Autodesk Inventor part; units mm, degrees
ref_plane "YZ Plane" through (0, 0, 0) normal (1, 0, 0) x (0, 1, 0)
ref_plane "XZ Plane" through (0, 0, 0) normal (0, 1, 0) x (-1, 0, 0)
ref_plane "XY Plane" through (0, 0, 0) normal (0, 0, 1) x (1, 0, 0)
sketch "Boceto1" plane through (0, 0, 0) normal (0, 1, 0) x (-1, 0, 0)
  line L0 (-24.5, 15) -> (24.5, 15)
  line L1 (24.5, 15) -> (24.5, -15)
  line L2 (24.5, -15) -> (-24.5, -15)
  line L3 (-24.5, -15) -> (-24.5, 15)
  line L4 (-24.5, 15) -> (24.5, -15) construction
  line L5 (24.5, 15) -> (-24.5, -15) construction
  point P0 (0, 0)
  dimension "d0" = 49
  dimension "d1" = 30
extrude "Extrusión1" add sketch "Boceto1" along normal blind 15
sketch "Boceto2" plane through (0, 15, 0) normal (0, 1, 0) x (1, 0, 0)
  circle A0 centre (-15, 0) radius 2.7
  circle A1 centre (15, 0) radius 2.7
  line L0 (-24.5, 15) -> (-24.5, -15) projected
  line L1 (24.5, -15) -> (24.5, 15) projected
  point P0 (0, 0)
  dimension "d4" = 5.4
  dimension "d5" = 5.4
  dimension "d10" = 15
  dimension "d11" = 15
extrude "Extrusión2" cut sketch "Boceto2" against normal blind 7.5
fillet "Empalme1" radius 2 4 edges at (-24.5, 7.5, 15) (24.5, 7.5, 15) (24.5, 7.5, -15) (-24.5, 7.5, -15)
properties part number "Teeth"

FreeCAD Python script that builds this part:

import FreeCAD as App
import Part
import Sketcher
from FreeCAD import Vector
Q = App.Units.Quantity


def edges_at(feature, points):
    """Names of the edges that pass closest to the given points."""
    edges = feature.Shape.Edges
    near = lambda p: min(range(len(edges)), key=lambda i: edges[i].distToShape(Part.Vertex(*p))[0])
    return sorted({f"Edge{near(p) + 1}" for p in points})

doc = App.newDocument("Part")
body = doc.addObject("PartDesign::Body", "Body")

sketch1 = doc.addObject("Sketcher::SketchObject", "Sketch")
body.addObject(sketch1)
sketch1.AttachmentSupport = (doc.XZ_Plane, [""])
sketch1.MapMode = "FlatFace"
sketch1.addGeometry(Part.LineSegment(Vector(-24, 15, 0), Vector(24, 15, 0)), False)
sketch1.addGeometry(Part.LineSegment(Vector(24, 15, 0), Vector(24, -15, 0)), False)
sketch1.addGeometry(Part.LineSegment(Vector(24, -15, 0), Vector(-24, -15, 0)), False)
sketch1.addGeometry(Part.LineSegment(Vector(-24, -15, 0), Vector(-24, 15, 0)), False)
sketch1.addConstraint(Sketcher.Constraint("Coincident", 0, 2, 1, 1))
sketch1.addConstraint(Sketcher.Constraint("Coincident", 1, 2, 2, 1))
sketch1.addConstraint(Sketcher.Constraint("Coincident", 2, 2, 3, 1))
sketch1.addConstraint(Sketcher.Constraint("Coincident", 3, 2, 0, 1))
sketch1.addConstraint(Sketcher.Constraint("Horizontal", 0))
sketch1.addConstraint(Sketcher.Constraint("Vertical", 1))
sketch1.addConstraint(Sketcher.Constraint("Horizontal", 2))
sketch1.addConstraint(Sketcher.Constraint("Vertical", 3))
sketch1.addConstraint(Sketcher.Constraint("Symmetric", 0, 2, 2, 2, -1, 1))
sketch1.addConstraint(Sketcher.Constraint("DistanceX", 0, 1, 0, 2, Q("49 mm")))
sketch1.addConstraint(Sketcher.Constraint("DistanceY", 1, 2, 1, 1, Q("30 mm")))
pad1 = doc.addObject("PartDesign::Pad", "Pad")
body.addObject(pad1)
pad1.Profile = sketch1
pad1.Length = 15
pad1.Reversed = True

sketch2 = doc.addObject("Sketcher::SketchObject", "Sketch001")
body.addObject(sketch2)
sketch2.AttachmentSupport = (doc.XZ_Plane, [""])
sketch2.MapMode = "FlatFace"
sketch2.AttachmentOffset = App.Placement(Vector(0, 0, -15), App.Rotation())
sketch2.addGeometry(Part.Circle(Vector(-15, 0, 0), Vector(0, 0, 1), 2.7), False)
sketch2.addGeometry(Part.Circle(Vector(15, 0, 0), Vector(0, 0, 1), 2.7), False)
sketch2.addConstraint(Sketcher.Constraint("Equal", 0, 1))
sketch2.addConstraint(Sketcher.Constraint("Symmetric", 0, 3, 1, 3, -1, 1))
sketch2.addConstraint(Sketcher.Constraint("PointOnObject", 0, 3, -1))
sketch2.addConstraint(Sketcher.Constraint("Diameter", 0, Q("5.4 mm")))
sketch2.addConstraint(Sketcher.Constraint("DistanceX", 0, 3, -1, 1, Q("15 mm")))
pocket1 = doc.addObject("PartDesign::Pocket", "Pocket")
body.addObject(pocket1)
pocket1.Profile = sketch2
pocket1.Length = 7.5
pocket1.Reversed = True
doc.recompute()

fillet = doc.addObject("PartDesign::Fillet", "Fillet")
body.addObject(fillet)
fillet.Base = (pocket1, edges_at(pocket1, [
    (-24.5, 7.5, 15),
    (24.5, 7.5, 15),
    (24.5, 7.5, -15),
    (-24.5, 7.5, -15),
]))
fillet.Radius = 2

doc.recompute()
